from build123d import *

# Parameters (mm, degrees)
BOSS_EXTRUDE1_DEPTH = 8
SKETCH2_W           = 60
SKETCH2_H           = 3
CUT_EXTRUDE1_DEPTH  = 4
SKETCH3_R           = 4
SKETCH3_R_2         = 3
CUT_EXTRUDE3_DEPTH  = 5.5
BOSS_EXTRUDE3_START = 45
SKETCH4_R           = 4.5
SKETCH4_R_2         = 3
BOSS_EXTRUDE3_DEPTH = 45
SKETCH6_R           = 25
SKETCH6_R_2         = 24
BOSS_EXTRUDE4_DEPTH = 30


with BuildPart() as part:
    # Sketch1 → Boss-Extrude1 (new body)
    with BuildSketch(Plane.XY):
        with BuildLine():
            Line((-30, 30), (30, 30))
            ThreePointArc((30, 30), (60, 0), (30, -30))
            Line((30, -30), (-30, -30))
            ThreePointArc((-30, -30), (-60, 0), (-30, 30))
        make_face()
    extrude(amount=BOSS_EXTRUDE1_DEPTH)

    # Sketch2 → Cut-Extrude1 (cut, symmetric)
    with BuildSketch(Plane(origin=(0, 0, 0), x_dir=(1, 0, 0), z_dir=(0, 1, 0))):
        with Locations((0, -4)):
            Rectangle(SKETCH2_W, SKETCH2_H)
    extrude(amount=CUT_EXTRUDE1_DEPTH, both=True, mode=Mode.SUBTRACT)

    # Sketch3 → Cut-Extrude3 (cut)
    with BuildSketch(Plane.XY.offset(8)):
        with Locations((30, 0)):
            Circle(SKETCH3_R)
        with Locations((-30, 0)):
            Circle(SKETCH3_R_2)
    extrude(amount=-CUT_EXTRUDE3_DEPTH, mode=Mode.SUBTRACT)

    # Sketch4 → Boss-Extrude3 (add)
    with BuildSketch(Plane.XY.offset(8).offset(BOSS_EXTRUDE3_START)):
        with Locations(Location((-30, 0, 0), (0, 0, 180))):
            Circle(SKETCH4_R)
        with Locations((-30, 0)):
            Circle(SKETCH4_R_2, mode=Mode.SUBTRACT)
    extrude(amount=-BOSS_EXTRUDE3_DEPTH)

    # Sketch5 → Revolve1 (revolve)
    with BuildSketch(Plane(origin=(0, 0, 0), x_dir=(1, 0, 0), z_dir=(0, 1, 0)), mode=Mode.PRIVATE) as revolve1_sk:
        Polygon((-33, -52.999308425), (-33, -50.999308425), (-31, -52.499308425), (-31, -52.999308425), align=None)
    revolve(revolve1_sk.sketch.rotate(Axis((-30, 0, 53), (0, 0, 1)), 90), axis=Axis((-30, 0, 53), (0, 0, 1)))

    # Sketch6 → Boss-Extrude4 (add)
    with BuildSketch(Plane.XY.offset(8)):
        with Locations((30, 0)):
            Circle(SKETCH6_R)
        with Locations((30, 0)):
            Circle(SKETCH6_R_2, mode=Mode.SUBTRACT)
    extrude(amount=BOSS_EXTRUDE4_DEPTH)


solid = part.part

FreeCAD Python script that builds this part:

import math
import FreeCAD as App
import Part
import Sketcher
from FreeCAD import Vector


def add_polygon(sketch, points):
    """Adds a closed chain of lines whose ends are joined by coincident constraints."""
    first, n = sketch.GeometryCount, len(points)
    for a, b in zip(points, points[1:] + points[:1]):
        sketch.addGeometry(Part.LineSegment(App.Vector(*a, 0), App.Vector(*b, 0)), False)
    for i in range(n):
        sketch.addConstraint(Sketcher.Constraint("Coincident", first + i, 2, first + (i + 1) % n, 1))

doc = App.newDocument("Part")
body = doc.addObject("PartDesign::Body", "Body")

sketch1 = doc.addObject("Sketcher::SketchObject", "Sketch")
body.addObject(sketch1)
sketch1.AttachmentSupport = (doc.XY_Plane, [""])
sketch1.MapMode = "FlatFace"
sketch1.addGeometry(Part.LineSegment(Vector(30, 30, 0), Vector(-30, 30, 0)), False)
sketch1.addGeometry(Part.ArcOfCircle(Part.Circle(Vector(-30, 0, 0), Vector(0, 0, 1), 30), math.radians(90), math.radians(270)), False)
sketch1.addGeometry(Part.LineSegment(Vector(-30, -30, 0), Vector(30, -30, 0)), False)
sketch1.addGeometry(Part.ArcOfCircle(Part.Circle(Vector(30, 0, 0), Vector(0, 0, 1), 30), math.radians(-90), math.radians(90)), False)
sketch1.addConstraint(Sketcher.Constraint("Tangent", 0, 2, 1, 1))
sketch1.addConstraint(Sketcher.Constraint("Tangent", 1, 2, 2, 1))
sketch1.addConstraint(Sketcher.Constraint("Tangent", 2, 2, 3, 1))
sketch1.addConstraint(Sketcher.Constraint("Tangent", 3, 2, 0, 1))
sketch1.addConstraint(Sketcher.Constraint("Horizontal", 0))
sketch1.addConstraint(Sketcher.Constraint("Horizontal", 2))
sketch1.addConstraint(Sketcher.Constraint("Symmetric", 1, 3, 3, 3, -1, 1))
sketch1.addConstraint(Sketcher.Constraint("Radius", 1, 30.0))
sketch1.addConstraint(Sketcher.Constraint("DistanceX", 0, 2, 0, 1, 60.0))
pad1 = doc.addObject("PartDesign::Pad", "Pad")
body.addObject(pad1)
pad1.Profile = sketch1
pad1.Length = 8

sketch2 = doc.addObject("Sketcher::SketchObject", "Sketch001")
body.addObject(sketch2)
sketch2.AttachmentSupport = (doc.XZ_Plane, [""])
sketch2.MapMode = "FlatFace"
add_polygon(sketch2, [(-30, 2.5), (-30, 5.5), (30, 5.5), (30, 2.5)])
sketch2.addConstraint(Sketcher.Constraint("Vertical", 0))
sketch2.addConstraint(Sketcher.Constraint("Horizontal", 1))
sketch2.addConstraint(Sketcher.Constraint("Vertical", 2))
sketch2.addConstraint(Sketcher.Constraint("Horizontal", 3))
sketch2.addConstraint(Sketcher.Constraint("DistanceX", 1, 1, 1, 2, 60.0))
sketch2.addConstraint(Sketcher.Constraint("DistanceY", 0, 1, 0, 2, 3.0))
sketch2.addConstraint(Sketcher.Constraint("DistanceX", 0, 2, -1, 1, 30.0))
sketch2.addConstraint(Sketcher.Constraint("DistanceY", -1, 1, 0, 2, 5.5))
pocket1 = doc.addObject("PartDesign::Pocket", "Pocket")
body.addObject(pocket1)
pocket1.Profile = sketch2
pocket1.Length = 8
pocket1.Midplane = True

sketch3 = doc.addObject("Sketcher::SketchObject", "Sketch002")
body.addObject(sketch3)
sketch3.AttachmentSupport = (doc.XY_Plane, [""])
sketch3.MapMode = "FlatFace"
sketch3.AttachmentOffset = App.Placement(Vector(0, 0, 8), App.Rotation())
sketch3.addGeometry(Part.Circle(Vector(30, 0, 0), Vector(0, 0, 1), 4), False)
sketch3.addGeometry(Part.Circle(Vector(-30, 0, 0), Vector(0, 0, 1), 3), False)
sketch3.addConstraint(Sketcher.Constraint("Symmetric", 0, 3, 1, 3, -1, 1))
sketch3.addConstraint(Sketcher.Constraint("PointOnObject", 0, 3, -1))
sketch3.addConstraint(Sketcher.Constraint("Diameter", 0, 8.0))
sketch3.addConstraint(Sketcher.Constraint("Diameter", 1, 6.0))
sketch3.addConstraint(Sketcher.Constraint("DistanceX", -1, 1, 0, 3, 30.0))
pocket2 = doc.addObject("PartDesign::Pocket", "Pocket001")
body.addObject(pocket2)
pocket2.Profile = sketch3
pocket2.Length = 5.5

sketch4 = doc.addObject("Sketcher::SketchObject", "Sketch003")
body.addObject(sketch4)
sketch4.AttachmentSupport = (doc.XY_Plane, [""])
sketch4.MapMode = "FlatFace"
sketch4.AttachmentOffset = App.Placement(Vector(0, 0, 53), App.Rotation())
sketch4.addGeometry(Part.Circle(Vector(-30, 0, 0), Vector(0, 0, 1), 4.5), False)
sketch4.addGeometry(Part.Circle(Vector(-30, 0, 0), Vector(0, 0, 1), 3), False)
sketch4.addConstraint(Sketcher.Constraint("Coincident", 1, 3, 0, 3))
sketch4.addConstraint(Sketcher.Constraint("PointOnObject", 0, 3, -1))
sketch4.addConstraint(Sketcher.Constraint("Diameter", 0, 9.0))
sketch4.addConstraint(Sketcher.Constraint("Diameter", 1, 6.0))
sketch4.addConstraint(Sketcher.Constraint("DistanceX", 0, 3, -1, 1, 30.0))
pad2 = doc.addObject("PartDesign::Pad", "Pad001")
body.addObject(pad2)
pad2.Profile = sketch4
pad2.Length = 45
pad2.Reversed = True

sketch5 = doc.addObject("Sketcher::SketchObject", "Sketch004")
body.addObject(sketch5)
sketch5.AttachmentSupport = (doc.XZ_Plane, [""])
sketch5.MapMode = "FlatFace"
add_polygon(sketch5, [(-33, 50.999308), (-33, 52.999308), (-31, 52.999308), (-31, 52.499308)])
sketch5.addGeometry(Part.LineSegment(Vector(-30, 50.999308, 0), Vector(-30, 52.999308, 0)), True)
sketch5.addConstraint(Sketcher.Constraint("Vertical", 0))
sketch5.addConstraint(Sketcher.Constraint("Horizontal", 1))
sketch5.addConstraint(Sketcher.Constraint("Vertical", 2))
sketch5.addConstraint(Sketcher.Constraint("Vertical", 4))
sketch5.addConstraint(Sketcher.Constraint("Horizontal", 3, 2, 4, 1))
sketch5.addConstraint(Sketcher.Constraint("Horizontal", 1, 2, 4, 2))
sketch5.addConstraint(Sketcher.Constraint("Equal", 1, 0))
sketch5.addConstraint(Sketcher.Constraint("DistanceX", 1, 1, 1, 2, 2.0))
sketch5.addConstraint(Sketcher.Constraint("DistanceY", 2, 2, 2, 1, 0.5))
sketch5.addConstraint(Sketcher.Constraint("DistanceX", 0, 2, -1, 1, 33.0))
sketch5.addConstraint(Sketcher.Constraint("DistanceX", 4, 1, -1, 1, 30.0))
sketch5.addConstraint(Sketcher.Constraint("DistanceY", -1, 1, 0, 2, 52.999308))
revolution = doc.addObject("PartDesign::Revolution", "Revolution")
body.addObject(revolution)
revolution.Profile = sketch5
revolution.ReferenceAxis = (sketch5, ["Axis0"])
revolution.Angle = 360

sketch6 = doc.addObject("Sketcher::SketchObject", "Sketch005")
body.addObject(sketch6)
sketch6.AttachmentSupport = (doc.XY_Plane, [""])
sketch6.MapMode = "FlatFace"
sketch6.AttachmentOffset = App.Placement(Vector(0, 0, 8), App.Rotation())
sketch6.addGeometry(Part.Circle(Vector(30, 0, 0), Vector(0, 0, 1), 25), False)
sketch6.addGeometry(Part.Circle(Vector(30, 0, 0), Vector(0, 0, 1), 24), False)
sketch6.addConstraint(Sketcher.Constraint("Coincident", 1, 3, 0, 3))
sketch6.addConstraint(Sketcher.Constraint("PointOnObject", 0, 3, -1))
sketch6.addConstraint(Sketcher.Constraint("Diameter", 0, 50.0))
sketch6.addConstraint(Sketcher.Constraint("Diameter", 1, 48.0))
sketch6.addConstraint(Sketcher.Constraint("DistanceX", -1, 1, 0, 3, 30.0))
pad3 = doc.addObject("PartDesign::Pad", "Pad002")
body.addObject(pad3)
pad3.Profile = sketch6
pad3.Length = 30

doc.recompute()
